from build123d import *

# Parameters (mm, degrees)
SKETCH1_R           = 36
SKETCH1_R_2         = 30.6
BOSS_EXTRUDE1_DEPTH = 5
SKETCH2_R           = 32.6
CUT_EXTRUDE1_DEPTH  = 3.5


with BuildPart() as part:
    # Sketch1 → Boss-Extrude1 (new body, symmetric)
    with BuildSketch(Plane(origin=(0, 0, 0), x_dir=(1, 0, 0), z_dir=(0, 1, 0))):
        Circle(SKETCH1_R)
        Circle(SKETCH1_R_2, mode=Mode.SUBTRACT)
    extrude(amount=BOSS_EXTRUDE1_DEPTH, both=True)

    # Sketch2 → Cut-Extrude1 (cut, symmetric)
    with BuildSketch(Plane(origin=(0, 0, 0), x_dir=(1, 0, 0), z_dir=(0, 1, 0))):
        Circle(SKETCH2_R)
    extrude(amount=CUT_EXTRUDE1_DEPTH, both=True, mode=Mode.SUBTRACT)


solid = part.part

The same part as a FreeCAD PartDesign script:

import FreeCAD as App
import Part
import Sketcher
from FreeCAD import Vector

doc = App.newDocument("Part")
body = doc.addObject("PartDesign::Body", "Body")

# Sketch on XZ plane
sketch1 = doc.addObject("Sketcher::SketchObject", "Sketch")
body.addObject(sketch1)
sketch1.AttachmentSupport = (doc.XZ_Plane, [""])
sketch1.MapMode = "FlatFace"
sketch1.addGeometry([
    Part.Circle(Vector(0, 0, 0), Vector(0, 0, 1), 36),
    Part.Circle(Vector(0, 0, 0), Vector(0, 0, 1), 31),
], False)
sketch1.addConstraint([
    Sketcher.Constraint("Coincident", 0, 3, -1, 1),
    Sketcher.Constraint("Coincident", 1, 3, -1, 1),
    Sketcher.Constraint("Diameter", 0, 72.0),
    Sketcher.Constraint("Diameter", 1, 61.2),
])
pad1 = doc.addObject("PartDesign::Pad", "Pad")
body.addObject(pad1)
pad1.Profile = sketch1
pad1.Length = 10
pad1.Midplane = True

# Sketch on XZ plane
sketch2 = doc.addObject("Sketcher::SketchObject", "Sketch001")
body.addObject(sketch2)
sketch2.AttachmentSupport = (doc.XZ_Plane, [""])
sketch2.MapMode = "FlatFace"
sketch2.addGeometry(Part.Circle(Vector(0, 0, 0), Vector(0, 0, 1), 33), False)
sketch2.addConstraint([
    Sketcher.Constraint("Coincident", 0, 3, -1, 1),
    Sketcher.Constraint("Diameter", 0, 65.2),
])
pocket1 = doc.addObject("PartDesign::Pocket", "Pocket")
body.addObject(pocket1)
pocket1.Profile = sketch2
pocket1.Length = 7
pocket1.Midplane = True

doc.recompute()
